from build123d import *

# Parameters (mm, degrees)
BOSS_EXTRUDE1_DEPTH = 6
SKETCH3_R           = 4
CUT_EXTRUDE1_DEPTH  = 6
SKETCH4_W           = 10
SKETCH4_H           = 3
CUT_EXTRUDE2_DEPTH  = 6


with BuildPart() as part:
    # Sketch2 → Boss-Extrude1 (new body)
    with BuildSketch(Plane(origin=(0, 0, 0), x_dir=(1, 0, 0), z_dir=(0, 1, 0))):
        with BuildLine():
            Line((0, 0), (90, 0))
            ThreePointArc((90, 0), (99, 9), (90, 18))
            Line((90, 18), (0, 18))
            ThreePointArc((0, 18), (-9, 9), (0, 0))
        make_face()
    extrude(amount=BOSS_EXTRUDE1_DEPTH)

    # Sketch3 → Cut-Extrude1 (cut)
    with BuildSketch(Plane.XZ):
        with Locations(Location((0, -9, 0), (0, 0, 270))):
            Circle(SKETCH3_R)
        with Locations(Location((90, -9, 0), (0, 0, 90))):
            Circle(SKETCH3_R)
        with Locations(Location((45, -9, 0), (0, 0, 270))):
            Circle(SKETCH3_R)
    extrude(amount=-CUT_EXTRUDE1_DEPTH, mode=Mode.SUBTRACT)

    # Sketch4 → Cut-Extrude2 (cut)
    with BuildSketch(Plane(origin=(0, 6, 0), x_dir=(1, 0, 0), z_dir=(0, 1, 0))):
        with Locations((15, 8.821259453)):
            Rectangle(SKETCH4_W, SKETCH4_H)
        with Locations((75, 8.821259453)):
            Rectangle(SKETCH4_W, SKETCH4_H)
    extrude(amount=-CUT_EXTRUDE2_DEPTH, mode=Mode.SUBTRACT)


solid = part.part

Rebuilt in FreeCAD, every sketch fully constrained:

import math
import FreeCAD as App
import Part
import Sketcher
from FreeCAD import Vector
Q = App.Units.Quantity

doc = App.newDocument("Part")
params = doc.addObject("Spreadsheet::Sheet", "Params")
for row, (alias, value) in enumerate([
    ("sketch1_radius", "9 mm"),
    ("sketch1_width", "90 mm"),
    ("pad1_length", "6 mm"),
    ("sketch2_diameter", "8 mm"),
    ("pocket1_length", "6 mm"),
    ("sketch3_width", "10 mm"),
    ("sketch3_height", "3 mm"),
    ("pocket2_length", "6 mm"),
], start=1):
    params.set(f"A{row}", alias)
    params.set(f"B{row}", "=" + value)
    params.setAlias(f"B{row}", alias)

body = doc.addObject("PartDesign::Body", "Body")

# Sketch on XZ plane
sketch1 = body.newObject("Sketcher::SketchObject", "Sketch")
sketch1.AttachmentSupport = (doc.getObject("XZ_Plane"), [""])
sketch1.MapMode = "FlatFace"
sketch1.addGeometry([
    Part.LineSegment(Vector(0, 0, 0), Vector(90, 0, 0)),
    Part.ArcOfCircle(Part.Circle(Vector(90, -9, 0), Vector(0, 0, 1), 9), math.radians(-90), math.radians(90)),
    Part.LineSegment(Vector(90, -18, 0), Vector(0, -18, 0)),
    Part.ArcOfCircle(Part.Circle(Vector(0, -9, 0), Vector(0, 0, 1), 9), math.radians(90), math.radians(270)),
], False)
sketch1.addConstraint([
    Sketcher.Constraint("Tangent", 0, 2, 1, 2),
    Sketcher.Constraint("Tangent", 1, 1, 2, 1),
    Sketcher.Constraint("Tangent", 2, 2, 3, 2),
    Sketcher.Constraint("Tangent", 3, 1, 0, 1),
    Sketcher.Constraint("Horizontal", 0),
    Sketcher.Constraint("Horizontal", 2),
    Sketcher.Constraint("Coincident", 3, 1, -1, 1),
    Sketcher.Constraint("Radius", 1, Q("9 mm")),
    Sketcher.Constraint("DistanceX", 0, 1, 0, 2, Q("90 mm")),
])
sketch1.setExpression("Constraints[7]", "Params.sketch1_radius")
sketch1.setExpression("Constraints[8]", "Params.sketch1_width")
pad1 = body.newObject("PartDesign::Pad", "Pad")
pad1.Profile = sketch1
pad1.setExpression("Length", "Params.pad1_length")
pad1.Reversed = True

# Sketch on XZ plane
sketch2 = body.newObject("Sketcher::SketchObject", "Sketch001")
sketch2.AttachmentSupport = (doc.getObject("XZ_Plane"), [""])
sketch2.MapMode = "FlatFace"
sketch2.addGeometry([
    Part.Circle(Vector(0, -9, 0), Vector(0, 0, 1), 4),
    Part.Circle(Vector(90, -9, 0), Vector(0, 0, 1), 4),
    Part.Circle(Vector(45, -9, 0), Vector(0, 0, 1), 4),
], False)
sketch2.addConstraint([
    Sketcher.Constraint("Equal", 0, 1),
    Sketcher.Constraint("Equal", 1, 2),
    Sketcher.Constraint("PointOnObject", 0, 3, -2),
    Sketcher.Constraint("Horizontal", 0, 3, 1, 3),
    Sketcher.Constraint("Horizontal", 1, 3, 2, 3),
    Sketcher.Constraint("Diameter", 0, Q("8 mm")),
    Sketcher.Constraint("DistanceY", 0, 3, -1, 1, Q("9 mm")),
    Sketcher.Constraint("DistanceX", -1, 1, 1, 3, Q("90 mm")),
    Sketcher.Constraint("DistanceX", -1, 1, 2, 3, Q("45 mm")),
])
sketch2.setExpression("Constraints[5]", "Params.sketch2_diameter")
pocket1 = body.newObject("PartDesign::Pocket", "Pocket")
pocket1.Profile = sketch2
pocket1.setExpression("Length", "Params.pocket1_length")

# Sketch on XZ plane
sketch3 = body.newObject("Sketcher::SketchObject", "Sketch002")
sketch3.AttachmentSupport = (doc.getObject("XZ_Plane"), [""])
sketch3.MapMode = "FlatFace"
sketch3.AttachmentOffset = App.Placement(Vector(0, 0, -6), App.Rotation())
sketch3.addGeometry([
    Part.LineSegment(Vector(10, -10.3, 0), Vector(10, -7.3, 0)),  # 0
    Part.LineSegment(Vector(10, -7.3, 0), Vector(20, -7.3, 0)),  # 1
    Part.LineSegment(Vector(20, -7.3, 0), Vector(20, -10.3, 0)),  # 2
    Part.LineSegment(Vector(20, -10.3, 0), Vector(10, -10.3, 0)),  # 3
    Part.LineSegment(Vector(70, -10.3, 0), Vector(70, -7.3, 0)),  # 4
    Part.LineSegment(Vector(70, -7.3, 0), Vector(80, -7.3, 0)),  # 5
    Part.LineSegment(Vector(80, -7.3, 0), Vector(80, -10.3, 0)),  # 6
    Part.LineSegment(Vector(80, -10.3, 0), Vector(70, -10.3, 0)),  # 7
], False)
sketch3.addConstraint([
    Sketcher.Constraint("Coincident", 0, 2, 1, 1),
    Sketcher.Constraint("Coincident", 1, 2, 2, 1),
    Sketcher.Constraint("Coincident", 2, 2, 3, 1),
    Sketcher.Constraint("Coincident", 3, 2, 0, 1),
    Sketcher.Constraint("Coincident", 4, 2, 5, 1),
    Sketcher.Constraint("Coincident", 5, 2, 6, 1),
    Sketcher.Constraint("Coincident", 6, 2, 7, 1),
    Sketcher.Constraint("Coincident", 7, 2, 4, 1),
    Sketcher.Constraint("Vertical", 0),
    Sketcher.Constraint("Horizontal", 1),
    Sketcher.Constraint("Vertical", 2),
    Sketcher.Constraint("Horizontal", 3),
    Sketcher.Constraint("Vertical", 4),
    Sketcher.Constraint("Horizontal", 5),
    Sketcher.Constraint("Vertical", 6),
    Sketcher.Constraint("Horizontal", 7),
    Sketcher.Constraint("Horizontal", 1, 2, 4, 2),
    Sketcher.Constraint("Horizontal", 3, 2, 6, 2),
    Sketcher.Constraint("Equal", 3, 5),
    Sketcher.Constraint("DistanceX", 1, 1, 1, 2, Q("10 mm")),
    Sketcher.Constraint("DistanceY", 0, 1, 0, 2, Q("3 mm")),
    Sketcher.Constraint("DistanceX", -1, 1, 0, 2, Q("10 mm")),
    Sketcher.Constraint("DistanceX", -1, 1, 4, 2, Q("70 mm")),
    Sketcher.Constraint("DistanceY", 0, 2, -1, 1, Q("7.321259 mm")),
])
sketch3.setExpression("Constraints[19]", "Params.sketch3_width")
sketch3.setExpression("Constraints[20]", "Params.sketch3_height")
pocket2 = body.newObject("PartDesign::Pocket", "Pocket001")
pocket2.Profile = sketch3
pocket2.setExpression("Length", "Params.pocket2_length")
pocket2.Reversed = True

doc.recompute()
